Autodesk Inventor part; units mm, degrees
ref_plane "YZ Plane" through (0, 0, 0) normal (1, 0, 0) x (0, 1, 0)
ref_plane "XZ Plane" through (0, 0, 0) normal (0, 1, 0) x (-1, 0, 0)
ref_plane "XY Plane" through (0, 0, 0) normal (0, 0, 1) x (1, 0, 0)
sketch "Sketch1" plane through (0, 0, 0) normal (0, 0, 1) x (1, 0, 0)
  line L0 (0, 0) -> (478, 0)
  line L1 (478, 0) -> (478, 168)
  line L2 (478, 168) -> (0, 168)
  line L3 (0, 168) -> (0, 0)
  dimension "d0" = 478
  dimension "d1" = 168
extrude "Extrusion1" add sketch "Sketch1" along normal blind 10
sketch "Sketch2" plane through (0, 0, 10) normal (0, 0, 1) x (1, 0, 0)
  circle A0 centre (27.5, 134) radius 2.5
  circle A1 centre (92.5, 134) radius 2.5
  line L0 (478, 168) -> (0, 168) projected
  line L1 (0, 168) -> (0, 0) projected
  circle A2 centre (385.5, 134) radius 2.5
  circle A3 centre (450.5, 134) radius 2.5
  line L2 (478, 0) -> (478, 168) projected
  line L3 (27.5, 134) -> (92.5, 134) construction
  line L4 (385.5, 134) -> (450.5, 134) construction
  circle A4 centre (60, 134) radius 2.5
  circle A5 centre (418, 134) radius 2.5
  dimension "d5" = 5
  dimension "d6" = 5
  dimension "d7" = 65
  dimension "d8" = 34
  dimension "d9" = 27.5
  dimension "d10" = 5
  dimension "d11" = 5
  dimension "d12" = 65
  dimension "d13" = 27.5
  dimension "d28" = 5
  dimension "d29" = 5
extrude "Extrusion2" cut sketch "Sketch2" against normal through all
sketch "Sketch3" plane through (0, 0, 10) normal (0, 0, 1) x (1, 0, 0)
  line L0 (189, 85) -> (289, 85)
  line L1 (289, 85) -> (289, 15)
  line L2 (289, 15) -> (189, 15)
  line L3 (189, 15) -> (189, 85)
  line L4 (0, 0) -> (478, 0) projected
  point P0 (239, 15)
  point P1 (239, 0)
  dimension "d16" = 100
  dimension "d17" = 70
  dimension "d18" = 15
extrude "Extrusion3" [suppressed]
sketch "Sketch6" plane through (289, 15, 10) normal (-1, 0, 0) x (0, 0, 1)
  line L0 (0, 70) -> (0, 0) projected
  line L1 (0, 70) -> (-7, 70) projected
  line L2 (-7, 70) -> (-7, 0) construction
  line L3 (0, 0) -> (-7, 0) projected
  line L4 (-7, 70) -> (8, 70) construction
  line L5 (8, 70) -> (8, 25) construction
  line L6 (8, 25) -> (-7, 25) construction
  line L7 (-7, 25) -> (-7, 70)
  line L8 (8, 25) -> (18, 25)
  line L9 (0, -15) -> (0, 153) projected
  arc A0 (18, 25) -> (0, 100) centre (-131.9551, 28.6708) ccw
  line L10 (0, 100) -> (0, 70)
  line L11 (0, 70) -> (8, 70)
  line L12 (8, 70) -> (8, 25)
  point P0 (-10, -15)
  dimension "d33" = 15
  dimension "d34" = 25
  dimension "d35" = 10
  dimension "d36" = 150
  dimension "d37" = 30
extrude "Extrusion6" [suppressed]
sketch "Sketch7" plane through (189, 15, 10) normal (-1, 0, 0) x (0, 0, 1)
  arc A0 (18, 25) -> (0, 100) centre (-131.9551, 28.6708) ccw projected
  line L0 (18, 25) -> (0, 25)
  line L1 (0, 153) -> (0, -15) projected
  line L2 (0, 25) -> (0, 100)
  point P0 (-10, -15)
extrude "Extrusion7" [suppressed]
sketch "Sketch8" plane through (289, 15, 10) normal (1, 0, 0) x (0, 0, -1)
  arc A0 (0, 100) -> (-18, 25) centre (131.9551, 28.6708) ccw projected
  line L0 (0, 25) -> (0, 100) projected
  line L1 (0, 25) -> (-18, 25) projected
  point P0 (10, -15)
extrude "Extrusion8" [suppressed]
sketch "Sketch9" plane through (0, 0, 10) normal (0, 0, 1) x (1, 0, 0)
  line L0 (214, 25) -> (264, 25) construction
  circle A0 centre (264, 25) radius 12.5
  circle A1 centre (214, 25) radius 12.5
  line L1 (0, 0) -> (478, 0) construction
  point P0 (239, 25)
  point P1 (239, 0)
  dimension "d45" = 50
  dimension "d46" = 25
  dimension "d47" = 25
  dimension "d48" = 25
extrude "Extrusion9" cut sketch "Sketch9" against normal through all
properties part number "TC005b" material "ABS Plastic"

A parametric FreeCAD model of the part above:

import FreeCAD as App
import Part
import Sketcher


def add_polygon(sketch, points):
    """Adds a closed chain of lines whose ends are joined by coincident constraints."""
    first, n = sketch.GeometryCount, len(points)
    for a, b in zip(points, points[1:] + points[:1]):
        sketch.addGeometry(Part.LineSegment(App.Vector(*a, 0), App.Vector(*b, 0)), False)
    for i in range(n):
        sketch.addConstraint(Sketcher.Constraint("Coincident", first + i, 2, first + (i + 1) % n, 1))

doc = App.newDocument("Part")
body = doc.addObject("PartDesign::Body", "Body")

sketch1 = doc.addObject("Sketcher::SketchObject", "Sketch")
body.addObject(sketch1)
sketch1.AttachmentSupport = (doc.XY_Plane, [""])
sketch1.MapMode = "FlatFace"
add_polygon(sketch1, [(0, 168), (0, 0), (478, 0), (478, 168)])
sketch1.addConstraint(Sketcher.Constraint("Vertical", 0))
sketch1.addConstraint(Sketcher.Constraint("Horizontal", 1))
sketch1.addConstraint(Sketcher.Constraint("Vertical", 2))
sketch1.addConstraint(Sketcher.Constraint("Horizontal", 3))
sketch1.addConstraint(Sketcher.Constraint("Coincident", 0, 2, -1, 1))
sketch1.addConstraint(Sketcher.Constraint("DistanceX", 1, 1, 1, 2, 478.0))
sketch1.addConstraint(Sketcher.Constraint("DistanceY", 0, 2, 0, 1, 168.0))
pad1 = doc.addObject("PartDesign::Pad", "Pad")
body.addObject(pad1)
pad1.Profile = sketch1
pad1.Length = 10

sketch2 = doc.addObject("Sketcher::SketchObject", "Sketch001")
body.addObject(sketch2)
sketch2.AttachmentSupport = (doc.XY_Plane, [""])
sketch2.MapMode = "FlatFace"
sketch2.AttachmentOffset = App.Placement(App.Vector(0, 0, 10), App.Rotation())
sketch2.addGeometry(Part.Circle(App.Vector(27.5, 134, 0), App.Vector(0, 0, 1), 2.5), False)
sketch2.addGeometry(Part.Circle(App.Vector(92.5, 134, 0), App.Vector(0, 0, 1), 2.5), False)
sketch2.addGeometry(Part.Circle(App.Vector(385.5, 134, 0), App.Vector(0, 0, 1), 2.5), False)
sketch2.addGeometry(Part.Circle(App.Vector(450.5, 134, 0), App.Vector(0, 0, 1), 2.5), False)
sketch2.addGeometry(Part.Circle(App.Vector(60, 134, 0), App.Vector(0, 0, 1), 2.5), False)
sketch2.addGeometry(Part.Circle(App.Vector(418, 134, 0), App.Vector(0, 0, 1), 2.5), False)
sketch2.addConstraint(Sketcher.Constraint("Equal", 0, 1))
sketch2.addConstraint(Sketcher.Constraint("Equal", 1, 2))
sketch2.addConstraint(Sketcher.Constraint("Equal", 2, 3))
sketch2.addConstraint(Sketcher.Constraint("Equal", 3, 4))
sketch2.addConstraint(Sketcher.Constraint("Equal", 4, 5))
sketch2.addConstraint(Sketcher.Constraint("Horizontal", 0, 3, 1, 3))
sketch2.addConstraint(Sketcher.Constraint("Horizontal", 1, 3, 2, 3))
sketch2.addConstraint(Sketcher.Constraint("Horizontal", 2, 3, 3, 3))
sketch2.addConstraint(Sketcher.Constraint("Horizontal", 3, 3, 4, 3))
sketch2.addConstraint(Sketcher.Constraint("Horizontal", 4, 3, 5, 3))
sketch2.addConstraint(Sketcher.Constraint("Diameter", 0, 5.0))
sketch2.addConstraint(Sketcher.Constraint("DistanceX", 0, 3, 1, 3, 65.0))
sketch2.addConstraint(Sketcher.Constraint("DistanceX", 2, 3, 3, 3, 65.0))
sketch2.addConstraint(Sketcher.Constraint("DistanceX", -1, 1, 0, 3, 27.5))
sketch2.addConstraint(Sketcher.Constraint("DistanceY", -1, 1, 0, 3, 134.0))
sketch2.addConstraint(Sketcher.Constraint("DistanceX", -1, 1, 4, 3, 60.0))
sketch2.addConstraint(Sketcher.Constraint("DistanceX", -1, 1, 5, 3, 418.0))
sketch2.addConstraint(Sketcher.Constraint("DistanceX", 1, 3, 2, 3, 293.0))
pocket1 = doc.addObject("PartDesign::Pocket", "Pocket")
body.addObject(pocket1)
pocket1.Profile = sketch2
pocket1.Type = "ThroughAll"

sketch3 = doc.addObject("Sketcher::SketchObject", "Sketch002")
body.addObject(sketch3)
sketch3.AttachmentSupport = (doc.XY_Plane, [""])
sketch3.MapMode = "FlatFace"
sketch3.AttachmentOffset = App.Placement(App.Vector(0, 0, 10), App.Rotation())
sketch3.addGeometry(Part.Circle(App.Vector(264, 25, 0), App.Vector(0, 0, 1), 12), False)
sketch3.addGeometry(Part.Circle(App.Vector(214, 25, 0), App.Vector(0, 0, 1), 12), False)
sketch3.addConstraint(Sketcher.Constraint("Equal", 0, 1))
sketch3.addConstraint(Sketcher.Constraint("Horizontal", 0, 3, 1, 3))
sketch3.addConstraint(Sketcher.Constraint("Diameter", 0, 25.0))
sketch3.addConstraint(Sketcher.Constraint("DistanceY", -1, 1, 0, 3, 25.0))
sketch3.addConstraint(Sketcher.Constraint("DistanceX", 1, 3, 0, 3, 50.0))
sketch3.addConstraint(Sketcher.Constraint("DistanceX", -1, 1, 0, 3, 264.0))
pocket2 = doc.addObject("PartDesign::Pocket", "Pocket001")
body.addObject(pocket2)
pocket2.Profile = sketch3
pocket2.Type = "ThroughAll"

doc.recompute()
